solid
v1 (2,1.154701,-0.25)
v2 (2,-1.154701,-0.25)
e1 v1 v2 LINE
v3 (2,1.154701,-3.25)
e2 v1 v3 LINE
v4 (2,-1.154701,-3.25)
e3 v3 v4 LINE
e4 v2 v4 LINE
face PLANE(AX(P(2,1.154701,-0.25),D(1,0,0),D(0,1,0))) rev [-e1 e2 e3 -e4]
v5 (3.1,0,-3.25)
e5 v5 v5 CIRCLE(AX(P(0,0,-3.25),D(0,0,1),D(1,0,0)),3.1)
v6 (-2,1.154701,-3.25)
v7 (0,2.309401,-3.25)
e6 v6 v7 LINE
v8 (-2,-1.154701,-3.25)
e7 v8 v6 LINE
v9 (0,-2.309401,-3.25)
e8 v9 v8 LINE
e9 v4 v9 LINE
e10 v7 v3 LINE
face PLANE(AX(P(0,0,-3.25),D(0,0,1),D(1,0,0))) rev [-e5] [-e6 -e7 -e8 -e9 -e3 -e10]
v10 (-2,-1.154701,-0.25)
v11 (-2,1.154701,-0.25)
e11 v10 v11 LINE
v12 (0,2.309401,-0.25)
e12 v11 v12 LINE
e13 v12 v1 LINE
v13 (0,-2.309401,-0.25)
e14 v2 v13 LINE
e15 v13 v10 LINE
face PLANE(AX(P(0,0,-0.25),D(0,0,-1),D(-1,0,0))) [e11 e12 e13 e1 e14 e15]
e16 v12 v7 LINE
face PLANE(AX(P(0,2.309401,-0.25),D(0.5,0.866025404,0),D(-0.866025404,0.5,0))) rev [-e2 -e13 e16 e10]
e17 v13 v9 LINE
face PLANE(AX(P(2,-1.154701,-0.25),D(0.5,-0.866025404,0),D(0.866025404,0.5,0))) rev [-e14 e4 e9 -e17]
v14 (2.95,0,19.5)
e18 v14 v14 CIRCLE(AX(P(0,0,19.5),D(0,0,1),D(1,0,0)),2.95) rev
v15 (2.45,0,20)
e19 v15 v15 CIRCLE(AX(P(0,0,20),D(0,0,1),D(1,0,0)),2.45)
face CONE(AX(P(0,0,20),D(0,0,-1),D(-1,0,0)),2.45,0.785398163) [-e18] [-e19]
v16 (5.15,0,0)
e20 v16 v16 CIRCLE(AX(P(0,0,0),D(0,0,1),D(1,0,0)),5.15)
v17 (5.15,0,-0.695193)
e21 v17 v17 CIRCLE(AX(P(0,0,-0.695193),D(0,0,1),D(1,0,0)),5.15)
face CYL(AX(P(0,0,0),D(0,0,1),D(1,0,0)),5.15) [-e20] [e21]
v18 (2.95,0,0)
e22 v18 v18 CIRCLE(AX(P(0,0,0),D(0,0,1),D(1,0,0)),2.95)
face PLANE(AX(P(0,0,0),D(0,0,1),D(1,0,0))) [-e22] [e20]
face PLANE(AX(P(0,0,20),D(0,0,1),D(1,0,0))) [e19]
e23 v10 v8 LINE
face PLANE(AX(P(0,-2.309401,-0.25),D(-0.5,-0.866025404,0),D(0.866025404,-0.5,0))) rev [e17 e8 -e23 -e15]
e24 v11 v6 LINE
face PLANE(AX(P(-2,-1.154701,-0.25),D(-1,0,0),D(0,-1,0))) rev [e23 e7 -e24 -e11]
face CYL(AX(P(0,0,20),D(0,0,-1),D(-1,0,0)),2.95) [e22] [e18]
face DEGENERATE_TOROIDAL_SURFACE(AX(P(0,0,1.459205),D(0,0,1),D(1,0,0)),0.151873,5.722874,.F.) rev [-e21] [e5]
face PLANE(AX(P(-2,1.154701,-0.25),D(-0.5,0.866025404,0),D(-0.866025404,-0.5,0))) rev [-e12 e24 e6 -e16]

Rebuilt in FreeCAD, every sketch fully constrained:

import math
import FreeCAD as App
import Part
import Sketcher
from FreeCAD import Vector
Q = App.Units.Quantity


def edges_at(feature, points):
    """Names of the edges that pass closest to the given points."""
    edges = feature.Shape.Edges
    near = lambda p: min(range(len(edges)), key=lambda i: edges[i].distToShape(Part.Vertex(*p))[0])
    return sorted({f"Edge{near(p) + 1}" for p in points})


def add_polygon(sketch, points):
    """Adds a closed chain of lines whose ends are joined by coincident constraints."""
    first, n = sketch.GeometryCount, len(points)
    for a, b in zip(points, points[1:] + points[:1]):
        sketch.addGeometry(Part.LineSegment(App.Vector(*a, 0), App.Vector(*b, 0)), False)
    for i in range(n):
        sketch.addConstraint(Sketcher.Constraint("Coincident", first + i, 2, first + (i + 1) % n, 1))

doc = App.newDocument("Part")
params = doc.addObject("Spreadsheet::Sheet", "Params")
for row, (alias, value) in enumerate([
    ("sketch1_diameter", "5.9 mm"),
    ("pad1_length", "20 mm"),
    ("sketch2_width", "3.1 mm"),
    ("sketch2_width2", "5.15 mm"),
    ("sketch2_height", "3.25 mm"),
    ("revolution_angle", "360 deg"),
    ("chamfer_size", "0.5 mm"),
    ("pocket1_length", "3 mm"),
], start=1):
    params.set(f"A{row}", alias)
    params.set(f"B{row}", "=" + value)
    params.setAlias(f"B{row}", alias)

body = doc.addObject("PartDesign::Body", "Body")

# Sketch on XY plane
sketch1 = body.newObject("Sketcher::SketchObject", "Sketch")
sketch1.AttachmentSupport = (doc.getObject("XY_Plane"), [""])
sketch1.MapMode = "FlatFace"
sketch1.addGeometry(Part.Circle(Vector(0, 0, 0), Vector(0, 0, 1), 2.95), False)
sketch1.addConstraint(Sketcher.Constraint("Coincident", 0, 3, -1, 1))
sketch1.addConstraint(Sketcher.Constraint("Diameter", 0, Q("5.9 mm")))
sketch1.setExpression("Constraints[1]", "Params.sketch1_diameter")
pad1 = body.newObject("PartDesign::Pad", "Pad")
pad1.Profile = sketch1
pad1.setExpression("Length", "Params.pad1_length")

# Sketch on YZ plane
sketch2 = body.newObject("Sketcher::SketchObject", "Sketch001")
sketch2.AttachmentSupport = (doc.getObject("YZ_Plane"), [""])
sketch2.MapMode = "FlatFace"
sketch2.addGeometry(Part.LineSegment(Vector(0, -3.25, 0), Vector(3.1, -3.25, 0)), False)
sketch2.addGeometry(Part.ArcOfCircle(Part.Circle(Vector(-0.151873, 1.459205, 0), Vector(0, 0, 1), 5.722874), math.radians(-55.373545), math.radians(-22.114196)), False)
sketch2.addGeometry(Part.LineSegment(Vector(5.15, -0.695193, 0), Vector(5.15, 0, 0)), False)
sketch2.addGeometry(Part.LineSegment(Vector(5.15, 0, 0), Vector(0, 0, 0)), False)
sketch2.addGeometry(Part.LineSegment(Vector(0, 0, 0), Vector(0, -3.25, 0)), False)
sketch2.addConstraint(Sketcher.Constraint("Coincident", 0, 2, 1, 1))
sketch2.addConstraint(Sketcher.Constraint("Coincident", 1, 2, 2, 1))
sketch2.addConstraint(Sketcher.Constraint("Coincident", 2, 2, 3, 1))
sketch2.addConstraint(Sketcher.Constraint("Coincident", 3, 2, 4, 1))
sketch2.addConstraint(Sketcher.Constraint("Coincident", 4, 2, 0, 1))
sketch2.addConstraint(Sketcher.Constraint("Horizontal", 0))
sketch2.addConstraint(Sketcher.Constraint("Vertical", 2))
sketch2.addConstraint(Sketcher.Constraint("Horizontal", 3))
sketch2.addConstraint(Sketcher.Constraint("Vertical", 4))
sketch2.addConstraint(Sketcher.Constraint("Coincident", 3, 2, -1, 1))
sketch2.addConstraint(Sketcher.Constraint("DistanceX", 0, 1, 0, 2, Q("3.1 mm")))
sketch2.addConstraint(Sketcher.Constraint("DistanceX", 3, 2, 3, 1, Q("5.15 mm")))
sketch2.addConstraint(Sketcher.Constraint("DistanceY", 4, 2, 4, 1, Q("3.25 mm")))
sketch2.addConstraint(Sketcher.Constraint("Radius", 1, Q("5.722874 mm")))
sketch2.addConstraint(Sketcher.Constraint("DistanceY", 2, 1, 2, 2, Q("0.695193 mm")))
sketch2.setExpression("Constraints[10]", "Params.sketch2_width")
sketch2.setExpression("Constraints[11]", "Params.sketch2_width2")
sketch2.setExpression("Constraints[12]", "Params.sketch2_height")
revolution = body.newObject("PartDesign::Revolution", "Revolution")
revolution.Profile = sketch2
revolution.ReferenceAxis = (sketch2, ["V_Axis"])
revolution.setExpression("Angle", "Params.revolution_angle")
doc.recompute()

chamfer = body.newObject("PartDesign::Chamfer", "Chamfer")
chamfer.Base = (revolution, edges_at(revolution, [(-2.95, 0, 20)]))
chamfer.setExpression("Size", "Params.chamfer_size")

# Sketch on XY plane
sketch3 = body.newObject("Sketcher::SketchObject", "Sketch002")
sketch3.AttachmentSupport = (doc.getObject("XY_Plane"), [""])
sketch3.MapMode = "FlatFace"
sketch3.AttachmentOffset = App.Placement(Vector(0, 0, -3.25), App.Rotation())
add_polygon(sketch3, [(-2, 1.154701), (0, 2.309401), (2, 1.154701), (2, -1.154701), (0, -2.309401), (-2, -1.154701)])  # lines 0-5
sketch3.addConstraint(Sketcher.Constraint("Vertical", 2))
sketch3.addConstraint(Sketcher.Constraint("Vertical", 5))
sketch3.addConstraint(Sketcher.Constraint("Symmetric", 0, 2, 3, 2, -1, 1))
sketch3.addConstraint(Sketcher.Constraint("Symmetric", 1, 2, 4, 2, -1, 1))
sketch3.addConstraint(Sketcher.Constraint("PointOnObject", 0, 2, -2))
sketch3.addConstraint(Sketcher.Constraint("Parallel", 0, 3))
sketch3.addConstraint(Sketcher.Constraint("Horizontal", 2, 2, 4, 2))
sketch3.addConstraint(Sketcher.Constraint("Angle", 0, Q("30 deg")))
sketch3.addConstraint(Sketcher.Constraint("DistanceX", -1, 1, 1, 2, Q("2 mm")))
sketch3.addConstraint(Sketcher.Constraint("DistanceY", 2, 2, 2, 1, Q("2.309401 mm")))
pocket1 = body.newObject("PartDesign::Pocket", "Pocket")
pocket1.Profile = sketch3
pocket1.setExpression("Length", "Params.pocket1_length")
pocket1.Reversed = True

doc.recompute()
